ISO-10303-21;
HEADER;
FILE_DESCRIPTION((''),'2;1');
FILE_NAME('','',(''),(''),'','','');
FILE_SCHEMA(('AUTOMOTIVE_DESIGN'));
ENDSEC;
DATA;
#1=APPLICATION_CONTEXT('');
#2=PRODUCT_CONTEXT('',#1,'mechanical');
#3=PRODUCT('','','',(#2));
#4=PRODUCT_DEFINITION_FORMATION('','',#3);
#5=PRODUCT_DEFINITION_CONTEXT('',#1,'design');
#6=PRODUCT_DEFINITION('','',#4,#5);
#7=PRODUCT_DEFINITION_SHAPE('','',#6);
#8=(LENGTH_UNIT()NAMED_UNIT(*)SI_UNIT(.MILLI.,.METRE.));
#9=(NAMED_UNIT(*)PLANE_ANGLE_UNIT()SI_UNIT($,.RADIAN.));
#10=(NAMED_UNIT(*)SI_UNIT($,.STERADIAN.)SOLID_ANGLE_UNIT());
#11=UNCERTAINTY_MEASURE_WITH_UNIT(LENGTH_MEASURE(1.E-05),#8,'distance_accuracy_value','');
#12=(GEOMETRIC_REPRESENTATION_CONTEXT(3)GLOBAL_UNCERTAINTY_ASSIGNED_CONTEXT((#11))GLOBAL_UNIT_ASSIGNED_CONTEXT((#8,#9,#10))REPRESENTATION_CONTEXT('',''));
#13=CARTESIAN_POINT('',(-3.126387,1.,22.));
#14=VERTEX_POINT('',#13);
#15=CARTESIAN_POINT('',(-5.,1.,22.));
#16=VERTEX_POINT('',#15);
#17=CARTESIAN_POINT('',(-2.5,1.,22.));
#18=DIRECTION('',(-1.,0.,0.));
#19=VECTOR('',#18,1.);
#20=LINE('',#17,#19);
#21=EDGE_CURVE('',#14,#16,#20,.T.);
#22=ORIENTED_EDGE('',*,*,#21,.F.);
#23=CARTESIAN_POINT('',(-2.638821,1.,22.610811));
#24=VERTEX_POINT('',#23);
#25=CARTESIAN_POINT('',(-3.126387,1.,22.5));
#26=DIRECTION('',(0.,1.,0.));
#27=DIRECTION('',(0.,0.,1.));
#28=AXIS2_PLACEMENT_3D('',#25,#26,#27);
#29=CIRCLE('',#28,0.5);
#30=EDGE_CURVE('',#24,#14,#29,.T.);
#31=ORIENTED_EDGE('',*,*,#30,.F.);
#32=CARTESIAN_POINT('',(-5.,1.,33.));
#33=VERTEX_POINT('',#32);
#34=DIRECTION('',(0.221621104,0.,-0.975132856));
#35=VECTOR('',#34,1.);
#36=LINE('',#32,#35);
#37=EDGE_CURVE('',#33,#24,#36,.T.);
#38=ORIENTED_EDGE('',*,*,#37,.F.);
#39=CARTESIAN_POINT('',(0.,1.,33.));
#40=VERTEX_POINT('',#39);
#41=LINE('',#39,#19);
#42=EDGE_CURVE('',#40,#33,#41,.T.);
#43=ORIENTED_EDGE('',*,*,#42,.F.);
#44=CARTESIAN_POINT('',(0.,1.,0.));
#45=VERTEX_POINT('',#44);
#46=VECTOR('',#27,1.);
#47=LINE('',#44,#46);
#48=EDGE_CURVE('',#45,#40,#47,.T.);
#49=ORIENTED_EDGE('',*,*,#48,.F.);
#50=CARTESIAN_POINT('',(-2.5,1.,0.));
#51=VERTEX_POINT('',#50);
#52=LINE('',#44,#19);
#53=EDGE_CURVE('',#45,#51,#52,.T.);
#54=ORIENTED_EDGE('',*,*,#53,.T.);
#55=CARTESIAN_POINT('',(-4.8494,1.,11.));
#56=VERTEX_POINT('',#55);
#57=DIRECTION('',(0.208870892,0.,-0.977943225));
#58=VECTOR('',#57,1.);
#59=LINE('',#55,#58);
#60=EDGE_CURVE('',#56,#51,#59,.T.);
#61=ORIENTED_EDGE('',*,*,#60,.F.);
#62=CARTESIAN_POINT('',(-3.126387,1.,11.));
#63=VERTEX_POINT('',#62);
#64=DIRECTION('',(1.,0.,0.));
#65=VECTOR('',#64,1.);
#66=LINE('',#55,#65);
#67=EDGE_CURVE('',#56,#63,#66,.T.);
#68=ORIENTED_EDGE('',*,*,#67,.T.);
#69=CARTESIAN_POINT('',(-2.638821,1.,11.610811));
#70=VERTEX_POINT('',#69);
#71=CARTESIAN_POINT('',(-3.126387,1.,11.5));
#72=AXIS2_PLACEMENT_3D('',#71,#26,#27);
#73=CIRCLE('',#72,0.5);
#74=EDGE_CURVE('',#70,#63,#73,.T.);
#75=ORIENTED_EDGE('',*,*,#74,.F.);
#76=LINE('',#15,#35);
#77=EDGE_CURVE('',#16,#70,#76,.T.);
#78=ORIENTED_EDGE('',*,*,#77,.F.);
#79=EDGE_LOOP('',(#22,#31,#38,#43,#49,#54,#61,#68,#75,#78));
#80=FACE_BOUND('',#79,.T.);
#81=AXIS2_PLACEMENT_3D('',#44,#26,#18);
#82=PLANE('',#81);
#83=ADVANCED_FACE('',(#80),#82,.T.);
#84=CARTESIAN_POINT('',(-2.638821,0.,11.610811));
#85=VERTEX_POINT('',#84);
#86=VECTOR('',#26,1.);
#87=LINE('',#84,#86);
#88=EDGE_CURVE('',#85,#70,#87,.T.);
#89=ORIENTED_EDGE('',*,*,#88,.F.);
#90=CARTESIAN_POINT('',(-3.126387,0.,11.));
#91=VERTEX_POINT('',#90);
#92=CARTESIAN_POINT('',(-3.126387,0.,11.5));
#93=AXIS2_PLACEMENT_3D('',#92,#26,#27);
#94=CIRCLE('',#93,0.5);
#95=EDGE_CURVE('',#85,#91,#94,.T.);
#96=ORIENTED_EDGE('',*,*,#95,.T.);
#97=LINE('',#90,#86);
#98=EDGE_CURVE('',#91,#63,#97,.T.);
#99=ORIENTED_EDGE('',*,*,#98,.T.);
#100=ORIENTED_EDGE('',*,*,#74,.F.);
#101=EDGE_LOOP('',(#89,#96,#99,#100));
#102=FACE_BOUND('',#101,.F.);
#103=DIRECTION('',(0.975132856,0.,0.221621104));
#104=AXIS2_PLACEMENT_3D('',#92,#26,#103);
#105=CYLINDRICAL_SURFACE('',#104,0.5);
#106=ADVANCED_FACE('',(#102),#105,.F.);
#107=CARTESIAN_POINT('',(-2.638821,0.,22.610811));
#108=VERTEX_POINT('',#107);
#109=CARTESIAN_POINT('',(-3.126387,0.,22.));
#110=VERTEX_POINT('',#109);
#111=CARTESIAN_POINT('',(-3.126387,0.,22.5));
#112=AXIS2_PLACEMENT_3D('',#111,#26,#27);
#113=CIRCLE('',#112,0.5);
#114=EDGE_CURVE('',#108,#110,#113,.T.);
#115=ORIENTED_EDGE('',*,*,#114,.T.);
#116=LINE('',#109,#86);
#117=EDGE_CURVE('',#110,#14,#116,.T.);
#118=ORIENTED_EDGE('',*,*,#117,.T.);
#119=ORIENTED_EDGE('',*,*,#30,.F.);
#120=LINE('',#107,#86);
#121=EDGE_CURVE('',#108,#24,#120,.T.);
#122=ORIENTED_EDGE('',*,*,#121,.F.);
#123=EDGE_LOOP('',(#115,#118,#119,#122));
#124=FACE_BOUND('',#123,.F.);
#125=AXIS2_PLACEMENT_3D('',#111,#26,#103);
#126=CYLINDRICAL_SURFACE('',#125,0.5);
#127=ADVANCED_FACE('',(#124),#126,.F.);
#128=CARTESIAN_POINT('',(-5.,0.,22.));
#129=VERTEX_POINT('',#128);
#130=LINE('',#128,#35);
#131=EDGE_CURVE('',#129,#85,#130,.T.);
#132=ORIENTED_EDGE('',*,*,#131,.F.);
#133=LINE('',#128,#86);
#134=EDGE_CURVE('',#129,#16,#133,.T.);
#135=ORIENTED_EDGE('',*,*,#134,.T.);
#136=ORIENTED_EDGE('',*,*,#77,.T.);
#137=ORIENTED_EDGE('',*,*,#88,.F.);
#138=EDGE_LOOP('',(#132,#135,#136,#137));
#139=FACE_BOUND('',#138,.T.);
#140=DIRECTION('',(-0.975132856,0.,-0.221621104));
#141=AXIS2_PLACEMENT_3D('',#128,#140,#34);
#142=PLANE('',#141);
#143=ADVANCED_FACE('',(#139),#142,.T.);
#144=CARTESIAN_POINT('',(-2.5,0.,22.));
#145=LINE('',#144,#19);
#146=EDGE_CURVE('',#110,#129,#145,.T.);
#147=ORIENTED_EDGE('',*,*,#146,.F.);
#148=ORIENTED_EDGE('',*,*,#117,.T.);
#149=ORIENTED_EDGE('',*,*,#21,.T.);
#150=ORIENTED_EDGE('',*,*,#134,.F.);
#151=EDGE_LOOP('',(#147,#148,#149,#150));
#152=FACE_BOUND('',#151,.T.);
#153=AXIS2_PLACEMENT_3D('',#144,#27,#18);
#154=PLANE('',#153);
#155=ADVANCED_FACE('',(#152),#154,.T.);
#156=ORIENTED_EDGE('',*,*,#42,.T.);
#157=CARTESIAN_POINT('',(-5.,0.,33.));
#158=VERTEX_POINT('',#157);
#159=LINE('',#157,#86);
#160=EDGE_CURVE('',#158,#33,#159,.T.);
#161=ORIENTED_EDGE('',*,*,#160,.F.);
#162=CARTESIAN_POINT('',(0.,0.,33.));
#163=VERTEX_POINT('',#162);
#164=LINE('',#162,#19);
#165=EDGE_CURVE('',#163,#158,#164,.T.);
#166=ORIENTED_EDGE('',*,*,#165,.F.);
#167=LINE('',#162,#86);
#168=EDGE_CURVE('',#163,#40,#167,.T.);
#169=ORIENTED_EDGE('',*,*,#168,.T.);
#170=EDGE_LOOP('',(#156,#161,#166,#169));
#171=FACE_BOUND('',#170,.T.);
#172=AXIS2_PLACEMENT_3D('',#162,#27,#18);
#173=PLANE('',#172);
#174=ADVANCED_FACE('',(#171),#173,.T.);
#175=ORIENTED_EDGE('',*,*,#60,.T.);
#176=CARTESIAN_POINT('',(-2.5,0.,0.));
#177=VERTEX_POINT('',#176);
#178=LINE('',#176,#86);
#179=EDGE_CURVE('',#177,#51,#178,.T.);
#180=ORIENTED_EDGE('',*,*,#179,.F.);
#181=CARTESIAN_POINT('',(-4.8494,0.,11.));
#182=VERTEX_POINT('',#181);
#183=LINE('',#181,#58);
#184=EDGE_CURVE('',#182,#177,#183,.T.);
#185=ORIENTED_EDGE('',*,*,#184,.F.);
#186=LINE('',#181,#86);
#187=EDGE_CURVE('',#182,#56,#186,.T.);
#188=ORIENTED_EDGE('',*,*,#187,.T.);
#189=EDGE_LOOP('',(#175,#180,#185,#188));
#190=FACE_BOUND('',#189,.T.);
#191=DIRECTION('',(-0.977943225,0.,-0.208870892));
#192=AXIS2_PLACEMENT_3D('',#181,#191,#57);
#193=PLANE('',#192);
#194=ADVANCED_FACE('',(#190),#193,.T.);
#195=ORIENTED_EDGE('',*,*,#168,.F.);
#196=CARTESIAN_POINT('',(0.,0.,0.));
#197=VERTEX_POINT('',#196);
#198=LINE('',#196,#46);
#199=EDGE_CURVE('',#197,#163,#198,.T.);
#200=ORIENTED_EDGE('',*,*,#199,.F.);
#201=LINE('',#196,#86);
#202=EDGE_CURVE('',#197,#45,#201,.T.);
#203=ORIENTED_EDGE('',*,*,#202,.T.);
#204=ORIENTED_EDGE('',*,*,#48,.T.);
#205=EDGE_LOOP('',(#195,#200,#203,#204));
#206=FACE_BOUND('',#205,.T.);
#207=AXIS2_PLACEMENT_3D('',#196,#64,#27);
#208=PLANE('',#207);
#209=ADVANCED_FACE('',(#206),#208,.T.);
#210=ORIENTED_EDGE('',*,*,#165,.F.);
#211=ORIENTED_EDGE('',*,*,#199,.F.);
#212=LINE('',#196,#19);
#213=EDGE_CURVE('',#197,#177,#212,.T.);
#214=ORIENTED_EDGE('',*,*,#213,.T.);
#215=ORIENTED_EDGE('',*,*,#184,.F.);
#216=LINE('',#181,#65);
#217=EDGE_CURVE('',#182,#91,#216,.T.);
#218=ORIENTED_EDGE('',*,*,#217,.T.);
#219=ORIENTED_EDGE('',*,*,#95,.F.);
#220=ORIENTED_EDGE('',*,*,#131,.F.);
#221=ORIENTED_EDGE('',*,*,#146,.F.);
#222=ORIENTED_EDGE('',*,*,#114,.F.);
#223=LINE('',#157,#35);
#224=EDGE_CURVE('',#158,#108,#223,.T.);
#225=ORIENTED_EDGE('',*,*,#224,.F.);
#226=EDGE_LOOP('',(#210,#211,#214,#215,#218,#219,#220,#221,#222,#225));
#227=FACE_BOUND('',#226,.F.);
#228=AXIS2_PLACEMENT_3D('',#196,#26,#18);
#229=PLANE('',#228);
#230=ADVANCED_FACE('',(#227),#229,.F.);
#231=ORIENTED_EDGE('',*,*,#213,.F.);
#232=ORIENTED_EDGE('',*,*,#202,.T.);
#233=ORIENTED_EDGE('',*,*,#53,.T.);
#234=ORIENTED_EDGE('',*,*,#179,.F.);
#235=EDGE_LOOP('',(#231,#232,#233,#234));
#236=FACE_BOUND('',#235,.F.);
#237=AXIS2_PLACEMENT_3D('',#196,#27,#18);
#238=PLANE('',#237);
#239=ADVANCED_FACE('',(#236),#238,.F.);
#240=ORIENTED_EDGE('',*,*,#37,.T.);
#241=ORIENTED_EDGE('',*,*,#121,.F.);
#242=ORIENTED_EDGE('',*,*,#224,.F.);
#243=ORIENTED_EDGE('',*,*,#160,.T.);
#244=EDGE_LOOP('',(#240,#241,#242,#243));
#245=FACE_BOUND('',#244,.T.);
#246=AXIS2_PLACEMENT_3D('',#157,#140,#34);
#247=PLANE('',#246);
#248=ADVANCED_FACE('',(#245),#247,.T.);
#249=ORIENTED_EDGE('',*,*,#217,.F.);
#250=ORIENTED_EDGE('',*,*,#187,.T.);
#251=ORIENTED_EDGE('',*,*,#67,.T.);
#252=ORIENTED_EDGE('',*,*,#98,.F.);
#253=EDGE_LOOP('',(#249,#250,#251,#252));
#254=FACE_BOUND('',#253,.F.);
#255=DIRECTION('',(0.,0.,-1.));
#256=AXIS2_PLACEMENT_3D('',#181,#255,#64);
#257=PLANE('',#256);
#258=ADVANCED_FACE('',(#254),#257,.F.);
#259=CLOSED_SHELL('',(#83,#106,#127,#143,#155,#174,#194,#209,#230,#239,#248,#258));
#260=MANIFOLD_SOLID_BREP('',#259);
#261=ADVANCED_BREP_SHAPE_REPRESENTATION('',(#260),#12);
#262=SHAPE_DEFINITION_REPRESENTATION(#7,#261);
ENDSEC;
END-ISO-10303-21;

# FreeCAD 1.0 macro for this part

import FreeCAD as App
import Part
import Sketcher
from FreeCAD import Vector
Q = App.Units.Quantity


def edges_at(feature, points):
    """Names of the edges that pass closest to the given points."""
    edges = feature.Shape.Edges
    near = lambda p: min(range(len(edges)), key=lambda i: edges[i].distToShape(Part.Vertex(*p))[0])
    return sorted({f"Edge{near(p) + 1}" for p in points})

doc = App.newDocument("Part")
body = doc.addObject("PartDesign::Body", "Body")

sketch1 = body.newObject("Sketcher::SketchObject", "Sketch")
sketch1.AttachmentSupport = (doc.getObject("XZ_Plane"), [""])
sketch1.MapMode = "FlatFace"
sketch1.addGeometry([
    Part.LineSegment(Vector(0, 33, 0), Vector(0, 0, 0)),
    Part.LineSegment(Vector(0, 0, 0), Vector(-2.5, 0, 0)),
    Part.LineSegment(Vector(-2.5, 0, 0), Vector(-4.8494, 11, 0)),
    Part.LineSegment(Vector(-4.8494, 11, 0), Vector(-2.5, 11, 0)),
    Part.LineSegment(Vector(-2.5, 11, 0), Vector(-5, 22, 0)),
    Part.LineSegment(Vector(-5, 22, 0), Vector(-2.5, 22, 0)),
    Part.LineSegment(Vector(-2.5, 22, 0), Vector(-5, 33, 0)),
    Part.LineSegment(Vector(-5, 33, 0), Vector(0, 33, 0)),
], False)
sketch1.addConstraint([
    Sketcher.Constraint("Coincident", 0, 2, 1, 1),
    Sketcher.Constraint("Coincident", 1, 2, 2, 1),
    Sketcher.Constraint("Coincident", 2, 2, 3, 1),
    Sketcher.Constraint("Coincident", 3, 2, 4, 1),
    Sketcher.Constraint("Coincident", 4, 2, 5, 1),
    Sketcher.Constraint("Coincident", 5, 2, 6, 1),
    Sketcher.Constraint("Coincident", 6, 2, 7, 1),
    Sketcher.Constraint("Coincident", 7, 2, 0, 1),
    Sketcher.Constraint("Vertical", 0),
    Sketcher.Constraint("Horizontal", 1),
    Sketcher.Constraint("Horizontal", 3),
    Sketcher.Constraint("Horizontal", 5),
    Sketcher.Constraint("Horizontal", 7),
    Sketcher.Constraint("Coincident", 0, 2, -1, 1),
    Sketcher.Constraint("Parallel", 4, 6),
    Sketcher.Constraint("Vertical", 1, 2, 3, 2),
    Sketcher.Constraint("Vertical", 3, 2, 5, 2),
    Sketcher.Constraint("Vertical", 4, 2, 6, 2),
    Sketcher.Constraint("Equal", 1, 5),
    Sketcher.Constraint("DistanceX", 7, 1, 7, 2, Q("5 mm")),
    Sketcher.Constraint("DistanceY", 0, 2, 0, 1, Q("33 mm")),
    Sketcher.Constraint("DistanceY", -1, 1, 2, 2, Q("11 mm")),
    Sketcher.Constraint("Distance", 2, Q("11.248 mm")),
])
pad1 = body.newObject("PartDesign::Pad", "Pad")
pad1.Profile = sketch1
pad1.Length = 1
pad1.Reversed = True
doc.recompute()

fillet = body.newObject("PartDesign::Fillet", "Fillet")
fillet.Base = (pad1, edges_at(pad1, [(-2.5, 0.5, 11), (-2.5, 0.5, 22)]))
fillet.Radius = 0.5

doc.recompute()
